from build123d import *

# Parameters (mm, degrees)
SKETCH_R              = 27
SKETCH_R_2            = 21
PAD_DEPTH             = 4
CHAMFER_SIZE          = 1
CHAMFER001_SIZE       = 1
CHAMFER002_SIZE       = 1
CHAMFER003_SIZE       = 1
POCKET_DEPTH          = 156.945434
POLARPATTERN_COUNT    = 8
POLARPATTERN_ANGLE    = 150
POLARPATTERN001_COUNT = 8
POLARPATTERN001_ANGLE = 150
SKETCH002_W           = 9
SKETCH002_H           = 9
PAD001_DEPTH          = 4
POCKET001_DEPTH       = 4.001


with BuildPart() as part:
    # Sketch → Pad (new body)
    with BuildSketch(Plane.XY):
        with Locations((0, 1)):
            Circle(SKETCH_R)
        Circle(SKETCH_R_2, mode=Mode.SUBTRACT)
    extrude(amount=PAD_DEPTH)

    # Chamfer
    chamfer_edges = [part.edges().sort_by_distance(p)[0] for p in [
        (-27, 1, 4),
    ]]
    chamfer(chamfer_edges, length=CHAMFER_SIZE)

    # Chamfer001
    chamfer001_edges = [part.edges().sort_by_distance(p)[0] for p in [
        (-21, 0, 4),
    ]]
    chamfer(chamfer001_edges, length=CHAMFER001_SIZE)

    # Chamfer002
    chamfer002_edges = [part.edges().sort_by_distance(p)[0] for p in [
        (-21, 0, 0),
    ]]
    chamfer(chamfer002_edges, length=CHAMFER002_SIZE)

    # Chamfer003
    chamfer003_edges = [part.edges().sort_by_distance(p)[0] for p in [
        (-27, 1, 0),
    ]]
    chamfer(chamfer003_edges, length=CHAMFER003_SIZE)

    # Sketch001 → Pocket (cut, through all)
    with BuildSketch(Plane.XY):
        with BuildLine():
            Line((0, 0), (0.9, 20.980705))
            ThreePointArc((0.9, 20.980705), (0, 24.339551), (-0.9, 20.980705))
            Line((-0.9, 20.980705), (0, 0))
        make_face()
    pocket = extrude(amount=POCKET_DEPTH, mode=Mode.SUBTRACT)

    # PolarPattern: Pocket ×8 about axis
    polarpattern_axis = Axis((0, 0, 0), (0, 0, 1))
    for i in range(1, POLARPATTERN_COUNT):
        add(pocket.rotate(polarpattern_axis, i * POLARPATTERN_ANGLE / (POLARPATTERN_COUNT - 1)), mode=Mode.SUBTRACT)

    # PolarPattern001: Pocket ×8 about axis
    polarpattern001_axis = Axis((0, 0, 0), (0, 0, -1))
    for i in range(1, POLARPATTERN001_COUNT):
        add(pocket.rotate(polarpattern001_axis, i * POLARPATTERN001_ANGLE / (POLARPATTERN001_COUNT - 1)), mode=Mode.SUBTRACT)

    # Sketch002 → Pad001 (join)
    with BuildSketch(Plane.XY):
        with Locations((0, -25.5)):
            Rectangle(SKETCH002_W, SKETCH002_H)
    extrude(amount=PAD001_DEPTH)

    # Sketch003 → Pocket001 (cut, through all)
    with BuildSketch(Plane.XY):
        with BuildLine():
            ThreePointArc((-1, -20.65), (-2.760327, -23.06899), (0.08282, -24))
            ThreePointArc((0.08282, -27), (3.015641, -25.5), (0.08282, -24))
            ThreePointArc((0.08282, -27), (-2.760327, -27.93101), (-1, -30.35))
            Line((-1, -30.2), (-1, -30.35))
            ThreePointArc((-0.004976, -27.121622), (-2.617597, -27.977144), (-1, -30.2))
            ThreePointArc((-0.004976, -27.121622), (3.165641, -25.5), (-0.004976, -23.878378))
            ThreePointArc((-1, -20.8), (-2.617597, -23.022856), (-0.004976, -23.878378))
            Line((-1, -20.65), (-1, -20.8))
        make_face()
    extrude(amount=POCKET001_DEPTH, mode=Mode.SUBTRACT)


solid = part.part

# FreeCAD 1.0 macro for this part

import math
import FreeCAD as App
import Part
import Sketcher

V = App.Vector


def edges_at(feature, points):
    """Names of the edges that pass closest to the given points."""
    edges = feature.Shape.Edges
    near = lambda p: min(range(len(edges)), key=lambda i: edges[i].distToShape(Part.Vertex(*p))[0])
    return sorted({f"Edge{near(p) + 1}" for p in points})

doc = App.newDocument("Part")
body = doc.addObject("PartDesign::Body", "Body")

# Sketch on XY plane
sketch1 = body.newObject("Sketcher::SketchObject", "Sketch")
sketch1.AttachmentSupport = (doc.getObject("XY_Plane"), [""])
sketch1.MapMode = "FlatFace"
sketch1.addGeometry(Part.Circle(V(0, 1, 0), V(0, 0, 1), 27), False)
sketch1.addGeometry(Part.Circle(V(0, 0, 0), V(0, 0, 1), 21), False)
sketch1.addConstraint(Sketcher.Constraint("Coincident", 1, 3, -1, 1))
sketch1.addConstraint(Sketcher.Constraint("PointOnObject", 0, 3, -2))
sketch1.addConstraint(Sketcher.Constraint("Diameter", 0, 54.0))
sketch1.addConstraint(Sketcher.Constraint("Diameter", 1, 42.0))
sketch1.addConstraint(Sketcher.Constraint("DistanceY", -1, 1, 0, 3, 1.0))
pad1 = body.newObject("PartDesign::Pad", "Pad")
pad1.Profile = sketch1
pad1.Length = 4
doc.recompute()

chamfer = body.newObject("PartDesign::Chamfer", "Chamfer")
chamfer.Base = (pad1, edges_at(pad1, [(-27, 1, 4)]))
chamfer.Size = 1
doc.recompute()

chamfer2 = body.newObject("PartDesign::Chamfer", "Chamfer001")
chamfer2.Base = (chamfer, edges_at(chamfer, [(-21, 0, 4)]))
chamfer2.Size = 1
doc.recompute()

chamfer3 = body.newObject("PartDesign::Chamfer", "Chamfer002")
chamfer3.Base = (chamfer2, edges_at(chamfer2, [(-21, 0, 0)]))
chamfer3.Size = 1
doc.recompute()

chamfer4 = body.newObject("PartDesign::Chamfer", "Chamfer003")
chamfer4.Base = (chamfer3, edges_at(chamfer3, [(-27, 1, 0)]))
chamfer4.Size = 1

# Sketch on XY plane
sketch2 = body.newObject("Sketcher::SketchObject", "Sketch001")
sketch2.AttachmentSupport = (doc.getObject("XY_Plane"), [""])
sketch2.MapMode = "FlatFace"
sketch2.addGeometry(Part.LineSegment(V(0, 0, 0), V(0.9, 21, 0)), False)
sketch2.addGeometry(Part.ArcOfCircle(Part.Circle(V(0, 22.5, 0), V(0, 0, 1), 1.8), math.radians(-60), math.radians(240)), False)
sketch2.addGeometry(Part.LineSegment(V(-0.9, 21, 0), V(0, 0, 0)), False)
sketch2.addConstraint(Sketcher.Constraint("Coincident", 0, 2, 1, 1))
sketch2.addConstraint(Sketcher.Constraint("Coincident", 1, 2, 2, 1))
sketch2.addConstraint(Sketcher.Constraint("Coincident", 2, 2, 0, 1))
sketch2.addConstraint(Sketcher.Constraint("Coincident", 2, 2, -1, 1))
sketch2.addConstraint(Sketcher.Constraint("Symmetric", 0, 2, 1, 2, -2))
sketch2.addConstraint(Sketcher.Constraint("Radius", 1, 1.8))
sketch2.addConstraint(Sketcher.Constraint("Distance", 0, 21.0))
sketch2.addConstraint(Sketcher.Constraint("DistanceX", -1, 1, 0, 2, 0.9))
pocket1 = body.newObject("PartDesign::Pocket", "Pocket")
pocket1.Profile = sketch2
pocket1.Type = "ThroughAll"
pocket1.Reversed = True
doc.recompute()

polarpattern = body.newObject("PartDesign::PolarPattern", "PolarPattern")
polarpattern.Originals = [pocket1]
polarpattern.Axis = (doc.getObject("Z_Axis"), [""])
polarpattern.Angle = 150
polarpattern.Occurrences = 8
body.Tip = polarpattern
doc.recompute()

polarpattern2 = body.newObject("PartDesign::PolarPattern", "PolarPattern001")
polarpattern2.Originals = [pocket1]
polarpattern2.Axis = (doc.getObject("Z_Axis"), [""])
polarpattern2.Angle = 150
polarpattern2.Occurrences = 8
polarpattern2.Reversed = True
body.Tip = polarpattern2

# Sketch on XY plane
sketch3 = body.newObject("Sketcher::SketchObject", "Sketch002")
sketch3.AttachmentSupport = (doc.getObject("XY_Plane"), [""])
sketch3.MapMode = "FlatFace"
sketch3.addGeometry(Part.LineSegment(V(-4, -21, 0), V(-4, -30, 0)), False)
sketch3.addGeometry(Part.LineSegment(V(-4, -30, 0), V(4, -30, 0)), False)
sketch3.addGeometry(Part.LineSegment(V(4, -30, 0), V(4, -21, 0)), False)
sketch3.addGeometry(Part.LineSegment(V(4, -21, 0), V(-4, -21, 0)), False)
sketch3.addConstraint(Sketcher.Constraint("Coincident", 0, 2, 1, 1))
sketch3.addConstraint(Sketcher.Constraint("Coincident", 1, 2, 2, 1))
sketch3.addConstraint(Sketcher.Constraint("Coincident", 2, 2, 3, 1))
sketch3.addConstraint(Sketcher.Constraint("Coincident", 3, 2, 0, 1))
sketch3.addConstraint(Sketcher.Constraint("Vertical", 0))
sketch3.addConstraint(Sketcher.Constraint("Horizontal", 1))
sketch3.addConstraint(Sketcher.Constraint("Vertical", 2))
sketch3.addConstraint(Sketcher.Constraint("Horizontal", 3))
sketch3.addConstraint(Sketcher.Constraint("Equal", 3, 0))
sketch3.addConstraint(Sketcher.Constraint("DistanceX", 1, 1, 1, 2, 9.0))
sketch3.addConstraint(Sketcher.Constraint("DistanceY", 0, 2, -1, 1, 30.0))
sketch3.addConstraint(Sketcher.Constraint("DistanceX", 0, 2, -1, 1, 4.5))
pad2 = body.newObject("PartDesign::Pad", "Pad001")
pad2.Profile = sketch3
pad2.Length = 4

# Sketch on XY plane
sketch4 = body.newObject("Sketcher::SketchObject", "Sketch003")
sketch4.AttachmentSupport = (doc.getObject("XY_Plane"), [""])
sketch4.MapMode = "FlatFace"
sketch4.addGeometry(Part.ArcOfCircle(Part.Circle(V(-1, -22.5, 0), V(0, 0, 1), 1.85), math.radians(90), math.radians(306)), False)
sketch4.addGeometry(Part.ArcOfCircle(Part.Circle(V(1.17, -25.5, 0), V(0, 0, 1), 1.85), math.radians(-126), math.radians(126)), False)
sketch4.addGeometry(Part.ArcOfCircle(Part.Circle(V(-1, -28.5, 0), V(0, 0, 1), 1.85), math.radians(54), math.radians(270)), False)
sketch4.addGeometry(Part.LineSegment(V(-1, -30.35, 0), V(-1, -30.2, 0)), False)
sketch4.addGeometry(Part.ArcOfCircle(Part.Circle(V(-1, -28.5, 0), V(0, 0, 1), 1.7), math.radians(54), math.radians(270)), False)
sketch4.addGeometry(Part.ArcOfCircle(Part.Circle(V(1.17, -25.5, 0), V(0, 0, 1), 2), math.radians(-126), math.radians(126)), False)
sketch4.addGeometry(Part.ArcOfCircle(Part.Circle(V(-1, -22.5, 0), V(0, 0, 1), 1.7), math.radians(90), math.radians(306)), False)
sketch4.addGeometry(Part.LineSegment(V(-1, -20.8, 0), V(-1, -20.65, 0)), False)
sketch4.addConstraint(Sketcher.Constraint("Tangent", 0, 2, 1, 2))
sketch4.addConstraint(Sketcher.Constraint("Tangent", 1, 1, 2, 1))
sketch4.addConstraint(Sketcher.Constraint("Coincident", 2, 2, 3, 1))
sketch4.addConstraint(Sketcher.Constraint("Coincident", 3, 2, 4, 2))
sketch4.addConstraint(Sketcher.Constraint("Tangent", 4, 1, 5, 1))
sketch4.addConstraint(Sketcher.Constraint("Tangent", 5, 2, 6, 2))
sketch4.addConstraint(Sketcher.Constraint("Coincident", 6, 1, 7, 1))
sketch4.addConstraint(Sketcher.Constraint("Coincident", 7, 2, 0, 1))
sketch4.addConstraint(Sketcher.Constraint("Vertical", 3))
sketch4.addConstraint(Sketcher.Constraint("Vertical", 7))
sketch4.addConstraint(Sketcher.Constraint("Coincident", 4, 3, 2, 3))
sketch4.addConstraint(Sketcher.Constraint("Coincident", 5, 3, 1, 3))
sketch4.addConstraint(Sketcher.Constraint("Coincident", 6, 3, 0, 3))
sketch4.addConstraint(Sketcher.Constraint("Equal", 0, 1))
sketch4.addConstraint(Sketcher.Constraint("Equal", 1, 2))
sketch4.addConstraint(Sketcher.Constraint("Vertical", 0, 3, 2, 3))
sketch4.addConstraint(Sketcher.Constraint("Vertical", 6, 3, 2, 2))
sketch4.addConstraint(Sketcher.Constraint("Vertical", 3, 2, 6, 1))
sketch4.addConstraint(Sketcher.Constraint("Radius", 5, 2.0))
sketch4.addConstraint(Sketcher.Constraint("Radius", 4, 1.7))
sketch4.addConstraint(Sketcher.Constraint("DistanceX", 0, 3, -1, 1, 1.0))
sketch4.addConstraint(Sketcher.Constraint("DistanceY", 0, 2, -1, 1, 24.0))
sketch4.addConstraint(Sketcher.Constraint("DistanceY", 1, 1, -1, 1, 27.0))
pocket2 = body.newObject("PartDesign::Pocket", "Pocket001")
pocket2.Profile = sketch4
pocket2.Type = "ThroughAll"
pocket2.Reversed = True

doc.recompute()
